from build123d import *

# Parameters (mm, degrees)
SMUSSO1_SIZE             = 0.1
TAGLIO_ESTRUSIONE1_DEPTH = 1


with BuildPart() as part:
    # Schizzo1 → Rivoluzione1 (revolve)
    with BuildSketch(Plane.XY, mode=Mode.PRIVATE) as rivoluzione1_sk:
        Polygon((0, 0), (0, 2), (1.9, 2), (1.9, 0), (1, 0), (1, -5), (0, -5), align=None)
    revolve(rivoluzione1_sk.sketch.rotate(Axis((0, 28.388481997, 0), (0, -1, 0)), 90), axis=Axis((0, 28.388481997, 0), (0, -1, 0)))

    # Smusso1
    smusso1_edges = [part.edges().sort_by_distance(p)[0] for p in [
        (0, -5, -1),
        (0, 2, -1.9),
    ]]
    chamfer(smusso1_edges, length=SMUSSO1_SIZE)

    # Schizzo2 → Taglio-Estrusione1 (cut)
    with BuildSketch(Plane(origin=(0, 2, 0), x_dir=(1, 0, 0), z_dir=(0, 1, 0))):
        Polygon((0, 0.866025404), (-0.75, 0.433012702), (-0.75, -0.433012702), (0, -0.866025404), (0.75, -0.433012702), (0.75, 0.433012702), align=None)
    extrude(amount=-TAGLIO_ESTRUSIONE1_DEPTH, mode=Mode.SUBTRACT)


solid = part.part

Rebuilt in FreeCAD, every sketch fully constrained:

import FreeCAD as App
import Part
import Sketcher

V = App.Vector
Q = App.Units.Quantity


def edges_at(feature, points):
    """Names of the edges that pass closest to the given points."""
    edges = feature.Shape.Edges
    near = lambda p: min(range(len(edges)), key=lambda i: edges[i].distToShape(Part.Vertex(*p))[0])
    return sorted({f"Edge{near(p) + 1}" for p in points})


def add_polygon(sketch, points):
    """Adds a closed chain of lines whose ends are joined by coincident constraints."""
    first, n = sketch.GeometryCount, len(points)
    for a, b in zip(points, points[1:] + points[:1]):
        sketch.addGeometry(Part.LineSegment(App.Vector(*a, 0), App.Vector(*b, 0)), False)
    for i in range(n):
        sketch.addConstraint(Sketcher.Constraint("Coincident", first + i, 2, first + (i + 1) % n, 1))

doc = App.newDocument("Part")
body = doc.addObject("PartDesign::Body", "Body")

# Sketch on XY plane
sketch1 = doc.addObject("Sketcher::SketchObject", "Sketch")
body.addObject(sketch1)
sketch1.AttachmentSupport = (doc.XY_Plane, [""])
sketch1.MapMode = "FlatFace"
add_polygon(sketch1, [(0, 2), (0, -5), (1, -5), (1, 0), (1.9, 0), (1.9, 2)])  # lines 0-5
sketch1.addConstraint(Sketcher.Constraint("Vertical", 0))
sketch1.addConstraint(Sketcher.Constraint("Horizontal", 1))
sketch1.addConstraint(Sketcher.Constraint("Vertical", 2))
sketch1.addConstraint(Sketcher.Constraint("Horizontal", 3))
sketch1.addConstraint(Sketcher.Constraint("Vertical", 4))
sketch1.addConstraint(Sketcher.Constraint("Horizontal", 5))
sketch1.addConstraint(Sketcher.Constraint("PointOnObject", 0, 2, -2))
sketch1.addConstraint(Sketcher.Constraint("PointOnObject", 2, 2, -1))
sketch1.addConstraint(Sketcher.Constraint("DistanceX", 1, 1, 1, 2, Q("1 mm")))
sketch1.addConstraint(Sketcher.Constraint("DistanceY", 0, 2, 0, 1, Q("7 mm")))
sketch1.addConstraint(Sketcher.Constraint("DistanceY", 2, 1, 2, 2, Q("5 mm")))
sketch1.addConstraint(Sketcher.Constraint("DistanceX", 3, 1, 3, 2, Q("0.9 mm")))
revolution = doc.addObject("PartDesign::Revolution", "Revolution")
body.addObject(revolution)
revolution.Profile = sketch1
revolution.ReferenceAxis = (sketch1, ["V_Axis"])
revolution.Angle = 360
doc.recompute()

chamfer = doc.addObject("PartDesign::Chamfer", "Chamfer")
body.addObject(chamfer)
chamfer.Base = (revolution, edges_at(revolution, [(0, -5, -1), (0, 2, -1.9)]))
chamfer.Size = 0.1

# Sketch on XZ plane
sketch2 = doc.addObject("Sketcher::SketchObject", "Sketch001")
body.addObject(sketch2)
sketch2.AttachmentSupport = (doc.XZ_Plane, [""])
sketch2.MapMode = "FlatFace"
sketch2.AttachmentOffset = App.Placement(V(0, 0, -2), App.Rotation())
add_polygon(sketch2, [(0, -0.9), (-0.8, -0.4), (-0.8, 0.4), (0, 0.9), (0.8, 0.4), (0.8, -0.4)])  # lines 0-5
sketch2.addConstraint(Sketcher.Constraint("Vertical", 1))
sketch2.addConstraint(Sketcher.Constraint("Vertical", 4))
sketch2.addConstraint(Sketcher.Constraint("Symmetric", 0, 2, 3, 2, -1, 1))
sketch2.addConstraint(Sketcher.Constraint("Symmetric", 2, 2, 5, 2, -1, 1))
sketch2.addConstraint(Sketcher.Constraint("PointOnObject", 2, 2, -2))
sketch2.addConstraint(Sketcher.Constraint("Parallel", 2, 5))
sketch2.addConstraint(Sketcher.Constraint("Horizontal", 1, 2, 3, 2))
sketch2.addConstraint(Sketcher.Constraint("Angle", 0, Q("150 deg")))
sketch2.addConstraint(Sketcher.Constraint("DistanceX", 1, 2, 3, 2, Q("1.5 mm")))
sketch2.addConstraint(Sketcher.Constraint("DistanceY", 1, 1, 1, 2, Q("0.866025 mm")))
pocket1 = doc.addObject("PartDesign::Pocket", "Pocket")
body.addObject(pocket1)
pocket1.Profile = sketch2
pocket1.Length = 1
pocket1.Reversed = True

doc.recompute()
